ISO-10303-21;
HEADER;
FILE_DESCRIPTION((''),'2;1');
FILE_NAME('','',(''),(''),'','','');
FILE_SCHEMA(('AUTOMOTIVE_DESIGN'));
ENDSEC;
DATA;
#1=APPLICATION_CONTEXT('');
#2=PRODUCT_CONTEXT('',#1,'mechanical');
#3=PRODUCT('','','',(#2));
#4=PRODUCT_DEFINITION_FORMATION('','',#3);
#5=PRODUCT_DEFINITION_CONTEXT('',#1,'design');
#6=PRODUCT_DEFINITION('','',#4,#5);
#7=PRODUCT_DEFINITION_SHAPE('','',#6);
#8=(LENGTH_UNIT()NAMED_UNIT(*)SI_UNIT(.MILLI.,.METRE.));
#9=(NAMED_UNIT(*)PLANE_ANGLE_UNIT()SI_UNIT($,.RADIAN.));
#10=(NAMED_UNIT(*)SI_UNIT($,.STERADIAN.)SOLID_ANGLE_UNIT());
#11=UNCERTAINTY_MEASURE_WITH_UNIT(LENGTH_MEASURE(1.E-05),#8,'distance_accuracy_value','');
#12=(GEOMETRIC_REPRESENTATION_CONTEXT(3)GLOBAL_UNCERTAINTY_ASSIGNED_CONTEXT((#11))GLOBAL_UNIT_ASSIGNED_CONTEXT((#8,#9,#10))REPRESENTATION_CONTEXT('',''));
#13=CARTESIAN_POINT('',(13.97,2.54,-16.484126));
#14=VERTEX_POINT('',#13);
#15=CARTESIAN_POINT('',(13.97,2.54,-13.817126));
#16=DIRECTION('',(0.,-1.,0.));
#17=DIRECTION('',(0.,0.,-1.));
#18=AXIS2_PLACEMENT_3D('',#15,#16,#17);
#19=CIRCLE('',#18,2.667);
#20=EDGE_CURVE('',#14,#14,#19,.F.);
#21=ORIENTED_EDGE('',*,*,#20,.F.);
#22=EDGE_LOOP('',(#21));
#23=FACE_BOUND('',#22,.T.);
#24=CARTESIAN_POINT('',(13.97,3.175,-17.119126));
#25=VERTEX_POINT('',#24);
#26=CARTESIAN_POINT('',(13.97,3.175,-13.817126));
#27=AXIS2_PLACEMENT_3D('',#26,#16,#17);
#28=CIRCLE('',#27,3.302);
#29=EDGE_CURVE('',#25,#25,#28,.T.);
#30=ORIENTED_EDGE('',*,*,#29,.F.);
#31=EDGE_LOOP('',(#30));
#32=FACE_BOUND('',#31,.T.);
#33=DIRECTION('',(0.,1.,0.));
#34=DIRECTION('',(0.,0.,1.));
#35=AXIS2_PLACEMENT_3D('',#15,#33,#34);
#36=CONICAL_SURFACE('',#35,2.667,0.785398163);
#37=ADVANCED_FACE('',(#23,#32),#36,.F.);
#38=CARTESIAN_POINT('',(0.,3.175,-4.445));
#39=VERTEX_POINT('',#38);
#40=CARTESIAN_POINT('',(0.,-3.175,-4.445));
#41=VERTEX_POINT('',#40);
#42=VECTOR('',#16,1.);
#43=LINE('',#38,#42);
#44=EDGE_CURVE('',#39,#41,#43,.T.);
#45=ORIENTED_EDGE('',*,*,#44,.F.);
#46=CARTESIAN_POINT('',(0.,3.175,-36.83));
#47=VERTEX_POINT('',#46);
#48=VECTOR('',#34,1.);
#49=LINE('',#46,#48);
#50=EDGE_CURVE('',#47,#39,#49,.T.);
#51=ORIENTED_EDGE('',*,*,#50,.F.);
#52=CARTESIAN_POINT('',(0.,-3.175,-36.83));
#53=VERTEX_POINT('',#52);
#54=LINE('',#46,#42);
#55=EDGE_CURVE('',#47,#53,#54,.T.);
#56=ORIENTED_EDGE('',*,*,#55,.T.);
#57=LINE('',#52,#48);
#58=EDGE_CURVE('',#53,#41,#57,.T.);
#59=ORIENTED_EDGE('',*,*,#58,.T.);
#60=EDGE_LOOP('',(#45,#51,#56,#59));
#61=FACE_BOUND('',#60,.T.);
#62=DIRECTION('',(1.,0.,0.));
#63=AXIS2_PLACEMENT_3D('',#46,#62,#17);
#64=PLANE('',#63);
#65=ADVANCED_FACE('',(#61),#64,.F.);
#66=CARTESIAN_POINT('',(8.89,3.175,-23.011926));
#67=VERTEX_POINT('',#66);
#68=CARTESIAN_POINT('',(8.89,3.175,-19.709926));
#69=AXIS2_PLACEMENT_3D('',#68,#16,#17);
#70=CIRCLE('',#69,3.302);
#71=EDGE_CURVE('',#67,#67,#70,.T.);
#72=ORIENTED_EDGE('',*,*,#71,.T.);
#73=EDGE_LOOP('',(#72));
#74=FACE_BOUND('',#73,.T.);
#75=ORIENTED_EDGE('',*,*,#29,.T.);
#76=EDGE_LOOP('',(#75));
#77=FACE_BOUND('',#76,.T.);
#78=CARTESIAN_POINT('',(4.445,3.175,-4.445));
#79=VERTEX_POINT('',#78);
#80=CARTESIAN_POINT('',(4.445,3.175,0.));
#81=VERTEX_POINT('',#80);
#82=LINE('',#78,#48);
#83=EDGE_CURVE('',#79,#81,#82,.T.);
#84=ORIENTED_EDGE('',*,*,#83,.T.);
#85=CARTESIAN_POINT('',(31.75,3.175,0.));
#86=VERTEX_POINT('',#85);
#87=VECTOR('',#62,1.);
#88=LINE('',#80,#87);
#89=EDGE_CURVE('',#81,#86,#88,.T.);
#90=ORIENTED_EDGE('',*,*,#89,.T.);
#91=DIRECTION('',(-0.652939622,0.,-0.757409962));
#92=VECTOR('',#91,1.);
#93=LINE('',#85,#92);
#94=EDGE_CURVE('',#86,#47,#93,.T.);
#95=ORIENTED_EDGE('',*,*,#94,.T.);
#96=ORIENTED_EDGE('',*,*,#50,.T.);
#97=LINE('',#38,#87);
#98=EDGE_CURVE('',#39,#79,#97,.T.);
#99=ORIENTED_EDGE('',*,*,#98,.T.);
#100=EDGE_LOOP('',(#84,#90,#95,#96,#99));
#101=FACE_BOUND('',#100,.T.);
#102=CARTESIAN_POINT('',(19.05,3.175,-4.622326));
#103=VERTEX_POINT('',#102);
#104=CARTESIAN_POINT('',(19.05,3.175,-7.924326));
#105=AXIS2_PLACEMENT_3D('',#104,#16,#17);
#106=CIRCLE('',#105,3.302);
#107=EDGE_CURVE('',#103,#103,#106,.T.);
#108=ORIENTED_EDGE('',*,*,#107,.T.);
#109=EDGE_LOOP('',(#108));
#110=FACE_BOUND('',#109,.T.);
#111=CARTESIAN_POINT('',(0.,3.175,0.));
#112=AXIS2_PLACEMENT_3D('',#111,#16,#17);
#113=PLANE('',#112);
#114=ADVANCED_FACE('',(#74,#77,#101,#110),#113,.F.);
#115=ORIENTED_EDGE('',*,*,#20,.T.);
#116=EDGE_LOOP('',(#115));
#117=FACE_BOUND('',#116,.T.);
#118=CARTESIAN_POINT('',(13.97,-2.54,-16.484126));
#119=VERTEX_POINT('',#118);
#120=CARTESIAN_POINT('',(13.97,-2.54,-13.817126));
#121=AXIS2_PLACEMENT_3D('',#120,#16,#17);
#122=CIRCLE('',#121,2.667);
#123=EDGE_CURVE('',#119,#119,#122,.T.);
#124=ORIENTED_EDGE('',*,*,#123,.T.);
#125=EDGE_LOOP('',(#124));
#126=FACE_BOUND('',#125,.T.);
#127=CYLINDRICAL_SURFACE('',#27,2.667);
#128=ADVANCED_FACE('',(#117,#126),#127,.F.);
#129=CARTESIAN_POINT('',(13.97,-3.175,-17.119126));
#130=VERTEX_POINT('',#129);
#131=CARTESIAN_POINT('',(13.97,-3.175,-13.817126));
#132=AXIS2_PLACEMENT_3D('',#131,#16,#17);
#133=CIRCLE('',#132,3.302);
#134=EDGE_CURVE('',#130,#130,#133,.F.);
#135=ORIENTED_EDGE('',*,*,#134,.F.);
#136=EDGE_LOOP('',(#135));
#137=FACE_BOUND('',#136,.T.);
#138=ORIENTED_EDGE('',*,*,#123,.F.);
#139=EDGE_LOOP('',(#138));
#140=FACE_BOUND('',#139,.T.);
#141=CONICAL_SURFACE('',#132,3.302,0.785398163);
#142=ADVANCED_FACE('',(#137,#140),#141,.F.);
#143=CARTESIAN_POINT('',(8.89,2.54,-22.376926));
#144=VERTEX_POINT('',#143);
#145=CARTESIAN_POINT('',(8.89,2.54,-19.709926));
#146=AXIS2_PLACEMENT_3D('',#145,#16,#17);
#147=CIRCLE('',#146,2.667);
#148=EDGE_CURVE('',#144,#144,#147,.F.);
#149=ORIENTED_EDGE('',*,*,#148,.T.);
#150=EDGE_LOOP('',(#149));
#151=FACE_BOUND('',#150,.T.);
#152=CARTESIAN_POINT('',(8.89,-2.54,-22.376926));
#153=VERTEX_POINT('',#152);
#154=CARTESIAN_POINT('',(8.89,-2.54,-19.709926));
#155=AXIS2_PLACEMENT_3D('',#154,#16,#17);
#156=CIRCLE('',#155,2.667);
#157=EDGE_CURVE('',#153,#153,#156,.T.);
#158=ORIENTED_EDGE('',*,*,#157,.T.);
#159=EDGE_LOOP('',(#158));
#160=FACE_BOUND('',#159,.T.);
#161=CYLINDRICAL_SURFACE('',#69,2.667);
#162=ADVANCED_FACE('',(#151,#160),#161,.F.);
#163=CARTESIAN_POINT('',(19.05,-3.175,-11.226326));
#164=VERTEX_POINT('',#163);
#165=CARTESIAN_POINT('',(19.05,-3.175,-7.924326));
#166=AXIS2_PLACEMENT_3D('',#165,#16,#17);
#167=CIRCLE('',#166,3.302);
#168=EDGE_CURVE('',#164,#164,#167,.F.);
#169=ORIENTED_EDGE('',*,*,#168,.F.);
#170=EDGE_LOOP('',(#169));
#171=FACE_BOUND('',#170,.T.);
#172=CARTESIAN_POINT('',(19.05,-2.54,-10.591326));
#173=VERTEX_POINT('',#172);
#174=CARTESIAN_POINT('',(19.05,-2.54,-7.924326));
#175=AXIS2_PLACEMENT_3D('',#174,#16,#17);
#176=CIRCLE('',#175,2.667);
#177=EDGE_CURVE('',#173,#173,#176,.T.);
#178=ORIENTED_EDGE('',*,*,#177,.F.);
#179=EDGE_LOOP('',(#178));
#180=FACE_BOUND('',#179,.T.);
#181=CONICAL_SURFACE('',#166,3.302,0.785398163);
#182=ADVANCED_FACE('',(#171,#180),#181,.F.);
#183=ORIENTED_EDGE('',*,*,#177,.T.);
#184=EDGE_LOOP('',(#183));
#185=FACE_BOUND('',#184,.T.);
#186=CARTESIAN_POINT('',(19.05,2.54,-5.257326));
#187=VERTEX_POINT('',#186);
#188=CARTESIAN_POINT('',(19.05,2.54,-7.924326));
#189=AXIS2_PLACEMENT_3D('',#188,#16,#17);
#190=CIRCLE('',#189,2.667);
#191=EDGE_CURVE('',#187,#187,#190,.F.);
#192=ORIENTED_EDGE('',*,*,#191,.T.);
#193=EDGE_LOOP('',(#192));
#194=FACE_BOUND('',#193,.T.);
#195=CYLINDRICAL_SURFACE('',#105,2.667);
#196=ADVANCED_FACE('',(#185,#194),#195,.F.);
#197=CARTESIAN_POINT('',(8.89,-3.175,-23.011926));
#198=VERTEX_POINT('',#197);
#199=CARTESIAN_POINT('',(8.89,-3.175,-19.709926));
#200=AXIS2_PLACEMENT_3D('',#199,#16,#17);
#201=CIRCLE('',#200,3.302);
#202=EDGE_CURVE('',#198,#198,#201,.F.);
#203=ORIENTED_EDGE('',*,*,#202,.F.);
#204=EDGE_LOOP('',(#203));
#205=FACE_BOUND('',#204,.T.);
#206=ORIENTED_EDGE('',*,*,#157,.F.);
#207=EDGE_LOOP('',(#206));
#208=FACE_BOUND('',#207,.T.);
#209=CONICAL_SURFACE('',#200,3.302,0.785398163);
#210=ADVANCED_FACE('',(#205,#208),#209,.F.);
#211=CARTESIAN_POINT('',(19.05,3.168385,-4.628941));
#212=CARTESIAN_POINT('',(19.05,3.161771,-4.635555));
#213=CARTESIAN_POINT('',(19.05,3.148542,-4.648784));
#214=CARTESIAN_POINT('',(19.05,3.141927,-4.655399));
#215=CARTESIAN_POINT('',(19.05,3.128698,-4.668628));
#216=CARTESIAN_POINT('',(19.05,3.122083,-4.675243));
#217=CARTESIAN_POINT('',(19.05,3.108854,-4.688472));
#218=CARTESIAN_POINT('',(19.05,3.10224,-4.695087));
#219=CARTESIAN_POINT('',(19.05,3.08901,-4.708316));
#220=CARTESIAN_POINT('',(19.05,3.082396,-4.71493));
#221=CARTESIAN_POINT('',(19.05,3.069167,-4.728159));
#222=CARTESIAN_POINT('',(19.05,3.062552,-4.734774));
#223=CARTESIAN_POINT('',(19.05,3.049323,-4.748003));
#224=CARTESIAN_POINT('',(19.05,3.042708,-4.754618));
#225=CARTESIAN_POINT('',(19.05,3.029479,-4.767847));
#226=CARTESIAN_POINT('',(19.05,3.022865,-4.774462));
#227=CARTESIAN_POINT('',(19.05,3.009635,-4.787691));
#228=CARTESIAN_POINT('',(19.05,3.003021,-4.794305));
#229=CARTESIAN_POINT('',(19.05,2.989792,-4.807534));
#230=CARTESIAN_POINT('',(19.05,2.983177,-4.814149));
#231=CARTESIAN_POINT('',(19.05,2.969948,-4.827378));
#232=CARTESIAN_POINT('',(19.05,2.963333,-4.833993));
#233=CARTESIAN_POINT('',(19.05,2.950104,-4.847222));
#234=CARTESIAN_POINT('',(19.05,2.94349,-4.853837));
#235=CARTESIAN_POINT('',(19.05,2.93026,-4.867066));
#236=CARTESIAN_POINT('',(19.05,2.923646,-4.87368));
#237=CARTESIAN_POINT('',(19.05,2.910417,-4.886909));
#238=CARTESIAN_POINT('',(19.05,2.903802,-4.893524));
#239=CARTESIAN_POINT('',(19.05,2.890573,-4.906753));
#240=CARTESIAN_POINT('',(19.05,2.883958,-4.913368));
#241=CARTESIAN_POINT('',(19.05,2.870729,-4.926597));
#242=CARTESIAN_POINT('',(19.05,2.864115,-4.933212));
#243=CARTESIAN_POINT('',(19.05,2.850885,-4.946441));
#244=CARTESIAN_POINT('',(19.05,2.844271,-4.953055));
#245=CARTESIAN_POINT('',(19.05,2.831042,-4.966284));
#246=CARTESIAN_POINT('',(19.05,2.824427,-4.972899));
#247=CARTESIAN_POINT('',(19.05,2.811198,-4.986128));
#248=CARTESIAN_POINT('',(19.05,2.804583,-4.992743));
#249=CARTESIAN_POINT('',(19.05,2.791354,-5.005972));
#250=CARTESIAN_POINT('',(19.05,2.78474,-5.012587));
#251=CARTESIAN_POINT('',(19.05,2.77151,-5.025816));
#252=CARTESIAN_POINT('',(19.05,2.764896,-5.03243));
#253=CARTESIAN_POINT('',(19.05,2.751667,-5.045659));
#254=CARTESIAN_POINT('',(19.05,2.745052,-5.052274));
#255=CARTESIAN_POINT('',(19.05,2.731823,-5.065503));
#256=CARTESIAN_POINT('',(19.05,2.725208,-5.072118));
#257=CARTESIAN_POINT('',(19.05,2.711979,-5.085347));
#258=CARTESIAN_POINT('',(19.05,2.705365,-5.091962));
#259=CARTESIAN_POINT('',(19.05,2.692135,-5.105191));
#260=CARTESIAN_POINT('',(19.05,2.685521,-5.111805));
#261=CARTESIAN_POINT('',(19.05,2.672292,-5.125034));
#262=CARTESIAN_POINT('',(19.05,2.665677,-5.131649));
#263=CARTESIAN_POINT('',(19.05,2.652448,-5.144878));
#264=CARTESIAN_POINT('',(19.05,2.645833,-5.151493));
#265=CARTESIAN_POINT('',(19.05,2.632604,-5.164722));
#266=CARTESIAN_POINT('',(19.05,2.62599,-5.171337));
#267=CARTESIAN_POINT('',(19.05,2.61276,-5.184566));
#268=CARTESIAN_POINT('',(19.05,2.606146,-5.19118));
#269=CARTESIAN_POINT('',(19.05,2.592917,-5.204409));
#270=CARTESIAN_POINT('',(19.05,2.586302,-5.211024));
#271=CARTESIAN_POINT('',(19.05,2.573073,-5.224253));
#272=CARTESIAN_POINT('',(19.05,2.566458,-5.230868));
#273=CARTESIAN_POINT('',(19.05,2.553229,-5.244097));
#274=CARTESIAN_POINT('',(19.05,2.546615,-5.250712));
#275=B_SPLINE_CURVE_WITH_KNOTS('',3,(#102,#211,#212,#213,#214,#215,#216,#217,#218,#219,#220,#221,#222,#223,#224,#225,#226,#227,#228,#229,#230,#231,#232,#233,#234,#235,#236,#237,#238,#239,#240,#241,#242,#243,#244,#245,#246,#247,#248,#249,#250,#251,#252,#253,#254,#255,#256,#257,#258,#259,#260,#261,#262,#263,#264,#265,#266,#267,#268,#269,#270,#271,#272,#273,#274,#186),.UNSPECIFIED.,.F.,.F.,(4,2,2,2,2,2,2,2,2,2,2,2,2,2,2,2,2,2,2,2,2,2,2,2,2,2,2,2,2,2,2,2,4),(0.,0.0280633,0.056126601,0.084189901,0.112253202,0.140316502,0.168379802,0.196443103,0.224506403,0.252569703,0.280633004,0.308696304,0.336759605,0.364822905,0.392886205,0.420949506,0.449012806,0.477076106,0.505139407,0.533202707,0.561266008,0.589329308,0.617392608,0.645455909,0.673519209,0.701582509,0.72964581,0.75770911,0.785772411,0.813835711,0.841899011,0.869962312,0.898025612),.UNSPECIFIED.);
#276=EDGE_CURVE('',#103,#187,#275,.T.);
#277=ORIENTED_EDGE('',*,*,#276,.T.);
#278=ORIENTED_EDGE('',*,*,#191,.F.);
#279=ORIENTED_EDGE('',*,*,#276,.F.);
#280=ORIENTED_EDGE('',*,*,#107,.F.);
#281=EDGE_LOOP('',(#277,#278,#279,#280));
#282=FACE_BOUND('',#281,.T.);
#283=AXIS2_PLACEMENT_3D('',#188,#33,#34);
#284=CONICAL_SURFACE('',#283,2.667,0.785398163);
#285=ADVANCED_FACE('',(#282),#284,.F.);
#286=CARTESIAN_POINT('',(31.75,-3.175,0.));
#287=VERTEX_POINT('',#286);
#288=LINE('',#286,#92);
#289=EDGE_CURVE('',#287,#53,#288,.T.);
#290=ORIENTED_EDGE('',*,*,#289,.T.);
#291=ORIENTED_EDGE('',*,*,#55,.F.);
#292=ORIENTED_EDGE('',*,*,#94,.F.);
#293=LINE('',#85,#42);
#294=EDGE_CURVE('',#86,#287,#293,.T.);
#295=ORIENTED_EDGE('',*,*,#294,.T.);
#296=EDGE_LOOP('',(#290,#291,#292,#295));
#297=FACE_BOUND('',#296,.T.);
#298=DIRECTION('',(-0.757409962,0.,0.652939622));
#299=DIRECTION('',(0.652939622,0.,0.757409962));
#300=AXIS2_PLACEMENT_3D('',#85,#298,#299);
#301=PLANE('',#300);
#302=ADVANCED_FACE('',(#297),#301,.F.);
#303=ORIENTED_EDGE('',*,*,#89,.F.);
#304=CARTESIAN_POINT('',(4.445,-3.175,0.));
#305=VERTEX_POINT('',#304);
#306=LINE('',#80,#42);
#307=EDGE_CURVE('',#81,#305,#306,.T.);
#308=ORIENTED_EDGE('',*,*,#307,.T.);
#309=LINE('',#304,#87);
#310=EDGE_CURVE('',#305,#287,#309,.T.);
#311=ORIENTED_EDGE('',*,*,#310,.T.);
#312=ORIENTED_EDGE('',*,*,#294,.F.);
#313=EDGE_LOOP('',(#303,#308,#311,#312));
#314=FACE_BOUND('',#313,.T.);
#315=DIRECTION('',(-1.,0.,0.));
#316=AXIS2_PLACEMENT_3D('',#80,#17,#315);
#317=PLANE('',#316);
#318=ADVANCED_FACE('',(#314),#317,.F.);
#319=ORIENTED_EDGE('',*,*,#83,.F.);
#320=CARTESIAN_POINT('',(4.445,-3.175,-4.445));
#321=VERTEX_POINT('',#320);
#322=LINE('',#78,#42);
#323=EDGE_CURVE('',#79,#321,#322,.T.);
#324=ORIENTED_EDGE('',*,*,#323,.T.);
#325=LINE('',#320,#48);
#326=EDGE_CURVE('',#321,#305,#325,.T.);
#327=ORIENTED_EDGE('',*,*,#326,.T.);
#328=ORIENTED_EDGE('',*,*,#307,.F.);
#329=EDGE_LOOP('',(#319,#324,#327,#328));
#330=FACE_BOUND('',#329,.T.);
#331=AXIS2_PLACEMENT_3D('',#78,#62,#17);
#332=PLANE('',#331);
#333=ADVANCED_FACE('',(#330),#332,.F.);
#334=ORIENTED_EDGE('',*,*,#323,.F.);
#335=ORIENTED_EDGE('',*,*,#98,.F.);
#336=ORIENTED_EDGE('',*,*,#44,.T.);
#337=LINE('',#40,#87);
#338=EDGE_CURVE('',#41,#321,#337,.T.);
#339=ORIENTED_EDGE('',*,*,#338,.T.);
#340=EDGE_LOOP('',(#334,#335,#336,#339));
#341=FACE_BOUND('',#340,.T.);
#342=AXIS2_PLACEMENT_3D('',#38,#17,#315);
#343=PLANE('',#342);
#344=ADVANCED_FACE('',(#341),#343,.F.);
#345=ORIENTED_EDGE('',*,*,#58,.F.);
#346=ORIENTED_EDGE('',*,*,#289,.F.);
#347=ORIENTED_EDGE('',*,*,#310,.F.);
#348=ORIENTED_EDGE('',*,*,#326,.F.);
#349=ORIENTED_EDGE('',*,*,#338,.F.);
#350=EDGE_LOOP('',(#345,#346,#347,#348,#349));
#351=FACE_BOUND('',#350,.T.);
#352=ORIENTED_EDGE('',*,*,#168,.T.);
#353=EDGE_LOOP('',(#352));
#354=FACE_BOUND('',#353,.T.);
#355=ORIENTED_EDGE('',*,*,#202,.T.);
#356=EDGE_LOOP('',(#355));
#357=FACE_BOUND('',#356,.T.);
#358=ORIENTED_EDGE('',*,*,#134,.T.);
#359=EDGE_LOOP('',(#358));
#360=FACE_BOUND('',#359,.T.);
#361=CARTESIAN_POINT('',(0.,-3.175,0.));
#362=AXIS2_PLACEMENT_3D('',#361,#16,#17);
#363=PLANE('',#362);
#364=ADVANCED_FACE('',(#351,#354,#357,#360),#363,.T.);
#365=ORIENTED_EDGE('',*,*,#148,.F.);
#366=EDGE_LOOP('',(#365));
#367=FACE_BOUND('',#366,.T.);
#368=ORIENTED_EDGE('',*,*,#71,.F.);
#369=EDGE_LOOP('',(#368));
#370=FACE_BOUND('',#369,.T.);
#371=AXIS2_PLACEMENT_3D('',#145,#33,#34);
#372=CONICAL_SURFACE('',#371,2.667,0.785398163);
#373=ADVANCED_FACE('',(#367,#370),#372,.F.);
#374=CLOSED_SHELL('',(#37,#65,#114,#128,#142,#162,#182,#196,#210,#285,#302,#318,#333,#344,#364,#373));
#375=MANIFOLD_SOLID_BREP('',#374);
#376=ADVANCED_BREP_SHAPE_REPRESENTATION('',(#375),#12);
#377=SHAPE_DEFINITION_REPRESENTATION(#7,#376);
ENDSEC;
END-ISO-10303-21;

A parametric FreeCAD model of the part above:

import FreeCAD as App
import Part
import Sketcher
Q = App.Units.Quantity


def edges_at(feature, points):
    """Names of the edges that pass closest to the given points."""
    edges = feature.Shape.Edges
    near = lambda p: min(range(len(edges)), key=lambda i: edges[i].distToShape(Part.Vertex(*p))[0])
    return sorted({f"Edge{near(p) + 1}" for p in points})


def add_polygon(sketch, points):
    """Adds a closed chain of lines whose ends are joined by coincident constraints."""
    first, n = sketch.GeometryCount, len(points)
    for a, b in zip(points, points[1:] + points[:1]):
        sketch.addGeometry(Part.LineSegment(App.Vector(*a, 0), App.Vector(*b, 0)), False)
    for i in range(n):
        sketch.addConstraint(Sketcher.Constraint("Coincident", first + i, 2, first + (i + 1) % n, 1))

doc = App.newDocument("Part")
body = doc.addObject("PartDesign::Body", "Body")

sketch1 = doc.addObject("Sketcher::SketchObject", "Sketch")
body.addObject(sketch1)
sketch1.AttachmentSupport = (doc.XZ_Plane, [""])
sketch1.MapMode = "FlatFace"
add_polygon(sketch1, [(0, -36.83), (0, -4.445), (4.445, -4.445), (4.445, 0), (31.75, 0)])
sketch1.addGeometry(Part.Circle(App.Vector(19.05, -7.924326, 0), App.Vector(0, 0, 1), 2.667), False)
sketch1.addGeometry(Part.Circle(App.Vector(8.89, -19.709926, 0), App.Vector(0, 0, 1), 2.667), False)
sketch1.addGeometry(Part.Circle(App.Vector(13.97, -13.817126, 0), App.Vector(0, 0, 1), 2.667), False)
sketch1.addConstraint([
    Sketcher.Constraint("Vertical", 0),
    Sketcher.Constraint("Horizontal", 1),
    Sketcher.Constraint("Vertical", 2),
    Sketcher.Constraint("Horizontal", 3),
    Sketcher.Constraint("Equal", 5, 6),
    Sketcher.Constraint("Equal", 6, 7),
    Sketcher.Constraint("PointOnObject", 0, 2, -2),
    Sketcher.Constraint("PointOnObject", 2, 2, -1),
    Sketcher.Constraint("Equal", 1, 2),
    Sketcher.Constraint("Diameter", 5, Q("0.21 in")),
    Sketcher.Constraint("DistanceX", 6, 3, 5, 3, Q("0.4 in")),
    Sketcher.Constraint("DistanceX", 6, 3, 7, 3, Q("0.2 in")),
    Sketcher.Constraint("DistanceX", 5, 3, 3, 2, Q("0.5 in")),
    Sketcher.Constraint("DistanceX", 1, 1, 1, 2, Q("0.175 in")),
    Sketcher.Constraint("DistanceX", 3, 1, 3, 2, Q("1.075 in")),
    Sketcher.Constraint("DistanceY", 0, 1, 0, 2, Q("1.275 in")),
    Sketcher.Constraint("DistanceY", 6, 3, 5, 3, Q("0.464 in")),
    Sketcher.Constraint("DistanceY", 6, 3, 7, 3, Q("0.232 in")),
    Sketcher.Constraint("DistanceY", 5, 3, -1, 1, 7.924326),
])
pad1 = doc.addObject("PartDesign::Pad", "Pad")
body.addObject(pad1)
pad1.Profile = sketch1
pad1.Length = Q("0.25 in")
pad1.Midplane = True
doc.recompute()

chamfer = doc.addObject("PartDesign::Chamfer", "Chamfer")
body.addObject(chamfer)
chamfer.Base = (pad1, edges_at(pad1, [
    (8.89, -3.175, -22.377),
    (8.89, 3.175, -22.377),
    (13.97, -3.175, -16.484),
    (13.97, 3.175, -16.484),
    (19.05, -3.175, -10.591),
    (19.05, 3.175, -10.591),
]))
chamfer.Size = Q("0.025 in")

doc.recompute()
